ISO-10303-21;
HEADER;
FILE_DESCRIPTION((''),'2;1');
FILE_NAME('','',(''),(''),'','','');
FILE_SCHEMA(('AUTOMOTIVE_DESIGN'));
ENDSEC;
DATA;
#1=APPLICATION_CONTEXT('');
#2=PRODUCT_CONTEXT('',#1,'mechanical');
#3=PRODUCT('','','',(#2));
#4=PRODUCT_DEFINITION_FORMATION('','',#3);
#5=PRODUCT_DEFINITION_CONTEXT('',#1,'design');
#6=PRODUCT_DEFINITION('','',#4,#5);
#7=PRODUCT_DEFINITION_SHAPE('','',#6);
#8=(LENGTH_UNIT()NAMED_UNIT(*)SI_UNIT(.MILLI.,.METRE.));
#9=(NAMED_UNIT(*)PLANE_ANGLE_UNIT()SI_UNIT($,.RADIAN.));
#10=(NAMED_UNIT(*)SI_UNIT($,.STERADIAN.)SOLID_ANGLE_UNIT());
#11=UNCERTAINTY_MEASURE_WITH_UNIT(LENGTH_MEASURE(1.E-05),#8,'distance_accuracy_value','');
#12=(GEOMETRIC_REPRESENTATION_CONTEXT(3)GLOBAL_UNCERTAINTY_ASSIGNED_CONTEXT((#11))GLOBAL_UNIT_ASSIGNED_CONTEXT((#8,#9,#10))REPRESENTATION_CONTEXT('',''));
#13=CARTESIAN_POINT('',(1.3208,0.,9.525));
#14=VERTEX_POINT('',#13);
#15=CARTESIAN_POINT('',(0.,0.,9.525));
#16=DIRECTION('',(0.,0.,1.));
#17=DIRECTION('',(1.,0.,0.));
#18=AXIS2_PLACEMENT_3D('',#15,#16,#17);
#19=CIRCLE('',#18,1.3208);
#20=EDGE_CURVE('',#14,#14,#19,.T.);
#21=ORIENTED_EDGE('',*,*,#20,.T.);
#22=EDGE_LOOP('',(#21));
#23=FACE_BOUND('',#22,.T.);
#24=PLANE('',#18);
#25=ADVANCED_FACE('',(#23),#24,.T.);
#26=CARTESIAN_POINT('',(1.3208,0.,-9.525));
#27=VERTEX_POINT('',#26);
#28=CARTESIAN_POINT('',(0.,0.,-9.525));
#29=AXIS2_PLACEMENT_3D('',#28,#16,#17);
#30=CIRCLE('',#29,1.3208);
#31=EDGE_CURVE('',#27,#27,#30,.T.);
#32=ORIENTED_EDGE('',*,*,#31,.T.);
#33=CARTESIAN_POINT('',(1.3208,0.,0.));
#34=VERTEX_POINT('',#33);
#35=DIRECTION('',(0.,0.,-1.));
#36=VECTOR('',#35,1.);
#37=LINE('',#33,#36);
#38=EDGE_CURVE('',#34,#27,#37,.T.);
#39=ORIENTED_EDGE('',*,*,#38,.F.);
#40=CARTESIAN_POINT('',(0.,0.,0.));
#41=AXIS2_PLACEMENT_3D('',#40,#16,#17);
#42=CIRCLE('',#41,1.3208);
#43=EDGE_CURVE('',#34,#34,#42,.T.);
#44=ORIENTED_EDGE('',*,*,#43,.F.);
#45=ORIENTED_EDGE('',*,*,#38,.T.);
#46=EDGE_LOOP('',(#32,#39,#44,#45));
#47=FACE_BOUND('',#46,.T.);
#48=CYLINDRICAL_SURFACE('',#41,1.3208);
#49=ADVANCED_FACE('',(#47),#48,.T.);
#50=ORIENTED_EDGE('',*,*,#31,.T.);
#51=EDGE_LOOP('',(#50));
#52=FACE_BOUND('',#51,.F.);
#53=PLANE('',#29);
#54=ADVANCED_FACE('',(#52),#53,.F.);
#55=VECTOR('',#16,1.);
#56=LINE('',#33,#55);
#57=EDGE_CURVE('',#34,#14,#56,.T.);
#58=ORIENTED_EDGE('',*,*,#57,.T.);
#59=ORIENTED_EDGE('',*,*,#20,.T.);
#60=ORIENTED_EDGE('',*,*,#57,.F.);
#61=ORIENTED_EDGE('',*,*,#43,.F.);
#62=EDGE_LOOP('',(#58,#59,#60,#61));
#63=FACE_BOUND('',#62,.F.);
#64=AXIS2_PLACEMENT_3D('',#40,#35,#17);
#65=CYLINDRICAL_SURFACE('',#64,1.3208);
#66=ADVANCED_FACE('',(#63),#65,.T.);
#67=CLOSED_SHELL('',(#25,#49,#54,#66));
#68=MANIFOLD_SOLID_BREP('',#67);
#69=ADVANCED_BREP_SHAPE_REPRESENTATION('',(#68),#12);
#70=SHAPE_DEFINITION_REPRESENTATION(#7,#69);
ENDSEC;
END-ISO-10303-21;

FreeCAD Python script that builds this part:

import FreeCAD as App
import Part
import Sketcher
Q = App.Units.Quantity

doc = App.newDocument("Part")
params = doc.addObject("Spreadsheet::Sheet", "Params")
for row, (alias, value) in enumerate([
    ("sketch1_diameter", "0.104 in"),
    ("pad1_length", "0.75 in"),
], start=1):
    params.set(f"A{row}", alias)
    params.set(f"B{row}", "=" + value)
    params.setAlias(f"B{row}", alias)

body = doc.addObject("PartDesign::Body", "Body")

sketch1 = body.newObject("Sketcher::SketchObject", "Sketch")
sketch1.AttachmentSupport = (doc.getObject("XY_Plane"), [""])
sketch1.MapMode = "FlatFace"
sketch1.addGeometry(Part.Circle(App.Vector(0, 0, 0), App.Vector(0, 0, 1), 1.3), False)
sketch1.addConstraint(Sketcher.Constraint("Coincident", 0, 3, -1, 1))
sketch1.addConstraint(Sketcher.Constraint("Diameter", 0, Q("0.104 in")))
sketch1.setExpression("Constraints[1]", "Params.sketch1_diameter")
pad1 = body.newObject("PartDesign::Pad", "Pad")
pad1.Profile = sketch1
pad1.setExpression("Length", "Params.pad1_length")
pad1.Midplane = True

doc.recompute()
